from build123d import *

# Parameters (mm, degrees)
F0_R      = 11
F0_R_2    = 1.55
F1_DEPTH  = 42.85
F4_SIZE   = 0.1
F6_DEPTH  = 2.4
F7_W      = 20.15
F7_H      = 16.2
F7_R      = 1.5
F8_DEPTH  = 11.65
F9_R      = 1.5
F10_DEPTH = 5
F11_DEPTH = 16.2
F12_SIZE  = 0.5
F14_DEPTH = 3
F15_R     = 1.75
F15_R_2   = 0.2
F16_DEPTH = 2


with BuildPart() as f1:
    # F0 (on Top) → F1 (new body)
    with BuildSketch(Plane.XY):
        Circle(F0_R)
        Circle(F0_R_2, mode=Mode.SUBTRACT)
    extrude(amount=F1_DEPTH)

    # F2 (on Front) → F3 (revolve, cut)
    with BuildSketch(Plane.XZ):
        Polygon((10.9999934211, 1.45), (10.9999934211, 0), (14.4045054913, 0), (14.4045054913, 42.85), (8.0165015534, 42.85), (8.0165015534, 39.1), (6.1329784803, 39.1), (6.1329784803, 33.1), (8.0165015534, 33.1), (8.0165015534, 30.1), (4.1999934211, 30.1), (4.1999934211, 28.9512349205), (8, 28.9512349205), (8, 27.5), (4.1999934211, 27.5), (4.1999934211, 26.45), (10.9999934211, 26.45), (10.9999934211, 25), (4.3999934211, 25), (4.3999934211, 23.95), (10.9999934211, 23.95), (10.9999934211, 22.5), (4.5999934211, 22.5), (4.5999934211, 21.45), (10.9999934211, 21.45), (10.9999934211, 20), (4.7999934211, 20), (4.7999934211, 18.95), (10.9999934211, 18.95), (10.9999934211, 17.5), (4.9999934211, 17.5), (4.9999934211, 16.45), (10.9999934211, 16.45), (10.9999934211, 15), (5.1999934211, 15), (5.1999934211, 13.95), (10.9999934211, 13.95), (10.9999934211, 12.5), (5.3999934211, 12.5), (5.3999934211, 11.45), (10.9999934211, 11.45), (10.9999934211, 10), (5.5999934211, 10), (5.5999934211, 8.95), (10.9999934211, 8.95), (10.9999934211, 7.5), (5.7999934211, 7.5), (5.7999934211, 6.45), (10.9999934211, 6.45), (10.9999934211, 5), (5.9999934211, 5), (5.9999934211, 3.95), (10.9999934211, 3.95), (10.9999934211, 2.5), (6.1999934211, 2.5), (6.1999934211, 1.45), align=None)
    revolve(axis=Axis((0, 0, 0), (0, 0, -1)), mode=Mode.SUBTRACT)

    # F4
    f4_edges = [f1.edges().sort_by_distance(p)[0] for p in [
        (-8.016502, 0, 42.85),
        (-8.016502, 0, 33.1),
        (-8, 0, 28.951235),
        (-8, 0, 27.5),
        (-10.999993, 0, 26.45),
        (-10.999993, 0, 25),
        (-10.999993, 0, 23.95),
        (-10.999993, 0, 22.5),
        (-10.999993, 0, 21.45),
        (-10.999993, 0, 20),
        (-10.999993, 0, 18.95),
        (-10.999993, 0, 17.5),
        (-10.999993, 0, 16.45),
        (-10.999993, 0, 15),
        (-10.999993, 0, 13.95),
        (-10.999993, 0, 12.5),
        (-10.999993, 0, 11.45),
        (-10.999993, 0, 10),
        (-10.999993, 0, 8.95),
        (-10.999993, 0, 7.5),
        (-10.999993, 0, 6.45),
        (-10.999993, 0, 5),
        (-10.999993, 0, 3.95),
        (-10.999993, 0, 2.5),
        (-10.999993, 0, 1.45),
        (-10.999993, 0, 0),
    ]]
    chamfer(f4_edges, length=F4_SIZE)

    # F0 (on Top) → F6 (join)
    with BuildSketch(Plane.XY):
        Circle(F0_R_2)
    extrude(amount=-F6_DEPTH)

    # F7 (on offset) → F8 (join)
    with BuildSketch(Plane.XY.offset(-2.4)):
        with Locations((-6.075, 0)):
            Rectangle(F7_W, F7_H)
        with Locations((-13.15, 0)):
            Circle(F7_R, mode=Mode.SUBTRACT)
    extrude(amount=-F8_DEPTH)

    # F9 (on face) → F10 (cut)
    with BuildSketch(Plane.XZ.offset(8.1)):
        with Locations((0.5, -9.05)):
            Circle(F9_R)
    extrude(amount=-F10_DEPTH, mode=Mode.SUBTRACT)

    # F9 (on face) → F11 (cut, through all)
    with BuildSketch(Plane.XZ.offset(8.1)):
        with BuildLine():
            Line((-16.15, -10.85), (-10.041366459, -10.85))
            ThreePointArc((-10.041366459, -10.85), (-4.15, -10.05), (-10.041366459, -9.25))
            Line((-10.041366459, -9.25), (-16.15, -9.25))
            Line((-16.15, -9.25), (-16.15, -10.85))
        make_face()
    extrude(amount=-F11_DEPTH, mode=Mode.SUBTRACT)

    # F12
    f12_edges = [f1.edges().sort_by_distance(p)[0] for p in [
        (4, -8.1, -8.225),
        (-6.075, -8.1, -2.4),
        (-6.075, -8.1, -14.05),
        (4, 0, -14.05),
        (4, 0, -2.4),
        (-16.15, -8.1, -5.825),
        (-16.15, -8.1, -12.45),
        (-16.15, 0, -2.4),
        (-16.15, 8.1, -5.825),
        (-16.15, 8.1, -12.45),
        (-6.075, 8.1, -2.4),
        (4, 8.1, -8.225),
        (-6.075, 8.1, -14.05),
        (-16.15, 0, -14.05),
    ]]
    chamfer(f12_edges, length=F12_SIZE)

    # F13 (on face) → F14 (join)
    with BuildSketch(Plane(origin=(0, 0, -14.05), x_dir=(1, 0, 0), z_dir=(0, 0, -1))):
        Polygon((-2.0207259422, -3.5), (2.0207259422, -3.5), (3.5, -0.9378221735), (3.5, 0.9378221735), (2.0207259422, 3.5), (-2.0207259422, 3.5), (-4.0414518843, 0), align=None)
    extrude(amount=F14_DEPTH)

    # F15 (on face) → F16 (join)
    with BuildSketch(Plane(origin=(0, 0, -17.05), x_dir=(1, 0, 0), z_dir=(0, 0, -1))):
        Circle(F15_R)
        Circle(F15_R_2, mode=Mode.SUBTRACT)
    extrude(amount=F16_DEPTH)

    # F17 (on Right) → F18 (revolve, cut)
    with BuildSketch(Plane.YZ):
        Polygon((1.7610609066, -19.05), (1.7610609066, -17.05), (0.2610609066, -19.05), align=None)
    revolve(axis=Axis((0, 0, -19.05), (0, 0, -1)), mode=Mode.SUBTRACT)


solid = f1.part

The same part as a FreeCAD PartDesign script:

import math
import FreeCAD as App
import Part
import Sketcher
from FreeCAD import Vector
Q = App.Units.Quantity


def edges_at(feature, points):
    """Names of the edges that pass closest to the given points."""
    edges = feature.Shape.Edges
    near = lambda p: min(range(len(edges)), key=lambda i: edges[i].distToShape(Part.Vertex(*p))[0])
    return sorted({f"Edge{near(p) + 1}" for p in points})


def add_polygon(sketch, points):
    """Adds a closed chain of lines whose ends are joined by coincident constraints."""
    first, n = sketch.GeometryCount, len(points)
    for a, b in zip(points, points[1:] + points[:1]):
        sketch.addGeometry(Part.LineSegment(App.Vector(*a, 0), App.Vector(*b, 0)), False)
    for i in range(n):
        sketch.addConstraint(Sketcher.Constraint("Coincident", first + i, 2, first + (i + 1) % n, 1))

doc = App.newDocument("Part")
params = doc.addObject("Spreadsheet::Sheet", "Params")
for row, (alias, value) in enumerate([
    ("sketch1_diameter", "22 mm"),
    ("sketch1_diameter2", "3.1 mm"),
    ("pad1_length", "42.85 mm"),
    ("sketch2_width", "6 mm"),
    ("sketch2_width2", "5 mm"),
    ("sketch2_height", "3 mm"),
    ("sketch2_width3", "6.8 mm"),
    ("sketch2_width4", "6.6 mm"),
    ("groove_angle", "360 deg"),
    ("chamfer_size", "0.1 mm"),
    ("sketch3_diameter", "3.1 mm"),
    ("pad2_length", "2.4 mm"),
    ("sketch4_diameter", "3 mm"),
    ("sketch4_height", "16.2 mm"),
    ("sketch4_width", "20.15 mm"),
    ("pad3_length", "11.65 mm"),
    ("sketch5_diameter", "3 mm"),
    ("pocket1_length", "5 mm"),
    ("sketch6_radius", "3 mm"),
    ("sketch6_height", "1.6 mm"),
    ("chamfer2_size", "0.5 mm"),
    ("pad4_length", "3 mm"),
    ("sketch8_diameter", "3.5 mm"),
    ("sketch8_diameter2", "0.4 mm"),
    ("pad5_length", "2 mm"),
    ("sketch9_height", "2 mm"),
    ("sketch9_width", "1.5 mm"),
    ("groove2_angle", "360 deg"),
], start=1):
    params.set(f"A{row}", alias)
    params.set(f"B{row}", "=" + value)
    params.setAlias(f"B{row}", alias)

body = doc.addObject("PartDesign::Body", "Body")
body.AllowCompound = True

# Sketch on XY plane
sketch1 = body.newObject("Sketcher::SketchObject", "Sketch")
sketch1.AttachmentSupport = (doc.getObject("XY_Plane"), [""])
sketch1.MapMode = "FlatFace"
sketch1.addGeometry([
    Part.Circle(Vector(0, 0, 0), Vector(0, 0, 1), 11),
    Part.Circle(Vector(0, 0, 0), Vector(0, 0, 1), 1.6),
], False)
sketch1.addConstraint([
    Sketcher.Constraint("Coincident", 0, 3, -1, 1),
    Sketcher.Constraint("Coincident", 1, 3, -1, 1),
    Sketcher.Constraint("Diameter", 0, 22.0),
    Sketcher.Constraint("Diameter", 1, 3.1),
])
sketch1.setExpression("Constraints[2]", "Params.sketch1_diameter")
sketch1.setExpression("Constraints[3]", "Params.sketch1_diameter2")
pad1 = body.newObject("PartDesign::Pad", "Pad")
pad1.Profile = sketch1
pad1.setExpression("Length", "Params.pad1_length")

# Sketch on XZ plane
sketch2 = body.newObject("Sketcher::SketchObject", "Sketch001")
sketch2.AttachmentSupport = (doc.getObject("XZ_Plane"), [""])
sketch2.MapMode = "FlatFace"
add_polygon(sketch2, [(11, 1.4), (11, 0), (14.4, 0), (14.4, 42.9), (8, 42.9), (8, 39.1), (6.1, 39.1), (6.1, 33.1), (8, 33.1), (8, 30.1), (4.2, 30.1), (4.2, 29), (8, 29), (8, 27.5), (4.2, 27.5), (4.2, 26.4), (11, 26.4), (11, 25), (4.4, 25), (4.4, 23.9), (11, 23.9), (11, 22.5), (4.6, 22.5), (4.6, 21.4), (11, 21.4), (11, 20), (4.8, 20), (4.8, 18.9), (11, 18.9), (11, 17.5), (5, 17.5), (5, 16.4), (11, 16.4), (11, 15), (5.2, 15), (5.2, 13.9), (11, 13.9), (11, 12.5), (5.4, 12.5), (5.4, 11.4), (11, 11.4), (11, 10), (5.6, 10), (5.6, 8.9), (11, 8.9), (11, 7.5), (5.8, 7.5), (5.8, 6.5), (11, 6.5), (11, 5), (6, 5), (6, 4), (11, 4), (11, 2.5), (6.2, 2.5), (6.2, 1.4)])  # lines 0-55
sketch2.addConstraint([
    Sketcher.Constraint("Vertical", 0),
    Sketcher.Constraint("Horizontal", 1),
    Sketcher.Constraint("Vertical", 2),
    Sketcher.Constraint("Horizontal", 3),
    Sketcher.Constraint("Vertical", 4),
    Sketcher.Constraint("Horizontal", 5),
    Sketcher.Constraint("Vertical", 6),
    Sketcher.Constraint("Horizontal", 7),
    Sketcher.Constraint("Vertical", 8),
    Sketcher.Constraint("Horizontal", 9),
    Sketcher.Constraint("Vertical", 10),
    Sketcher.Constraint("Horizontal", 11),
    Sketcher.Constraint("Vertical", 12),
    Sketcher.Constraint("Horizontal", 13),
    Sketcher.Constraint("Vertical", 14),
    Sketcher.Constraint("Horizontal", 15),
    Sketcher.Constraint("Vertical", 16),
    Sketcher.Constraint("Horizontal", 17),
    Sketcher.Constraint("Vertical", 18),
    Sketcher.Constraint("Horizontal", 19),
    Sketcher.Constraint("Vertical", 20),
    Sketcher.Constraint("Horizontal", 21),
    Sketcher.Constraint("Vertical", 22),
    Sketcher.Constraint("Horizontal", 23),
    Sketcher.Constraint("Vertical", 24),
    Sketcher.Constraint("Horizontal", 25),
    Sketcher.Constraint("Vertical", 26),
    Sketcher.Constraint("Horizontal", 27),
    Sketcher.Constraint("Vertical", 28),
    Sketcher.Constraint("Horizontal", 29),
    Sketcher.Constraint("Vertical", 30),
    Sketcher.Constraint("Horizontal", 31),
    Sketcher.Constraint("Vertical", 32),
    Sketcher.Constraint("Horizontal", 33),
    Sketcher.Constraint("Vertical", 34),
    Sketcher.Constraint("Horizontal", 35),
    Sketcher.Constraint("Vertical", 36),
    Sketcher.Constraint("Horizontal", 37),
    Sketcher.Constraint("Vertical", 38),
    Sketcher.Constraint("Horizontal", 39),
    Sketcher.Constraint("Vertical", 40),
    Sketcher.Constraint("Horizontal", 41),
    Sketcher.Constraint("Vertical", 42),
    Sketcher.Constraint("Horizontal", 43),
    Sketcher.Constraint("Vertical", 44),
    Sketcher.Constraint("Horizontal", 45),
    Sketcher.Constraint("Vertical", 46),
    Sketcher.Constraint("Horizontal", 47),
    Sketcher.Constraint("Vertical", 48),
    Sketcher.Constraint("Horizontal", 49),
    Sketcher.Constraint("Vertical", 50),
    Sketcher.Constraint("Horizontal", 51),
    Sketcher.Constraint("Vertical", 52),
    Sketcher.Constraint("Horizontal", 53),
    Sketcher.Constraint("Vertical", 54),
    Sketcher.Constraint("Horizontal", 55),
    Sketcher.Constraint("PointOnObject", 0, 2, -1),
    Sketcher.Constraint("Vertical", 4, 2, 7, 2),
    Sketcher.Constraint("Vertical", 10, 2, 13, 2),
    Sketcher.Constraint("Vertical", 0, 2, 15, 2),
    Sketcher.Constraint("Vertical", 16, 2, 19, 2),
    Sketcher.Constraint("Vertical", 20, 2, 23, 2),
    Sketcher.Constraint("Vertical", 24, 2, 27, 2),
    Sketcher.Constraint("Vertical", 28, 2, 31, 2),
    Sketcher.Constraint("Vertical", 32, 2, 35, 2),
    Sketcher.Constraint("Vertical", 36, 2, 39, 2),
    Sketcher.Constraint("Vertical", 40, 2, 43, 2),
    Sketcher.Constraint("Vertical", 44, 2, 47, 2),
    Sketcher.Constraint("Vertical", 48, 2, 51, 2),
    Sketcher.Constraint("Equal", 31, 6),
    Sketcher.Constraint("Equal", 0, 16),
    Sketcher.Constraint("Equal", 14, 18),
    Sketcher.Constraint("Equal", 16, 20),
    Sketcher.Constraint("Equal", 18, 22),
    Sketcher.Constraint("Equal", 20, 24),
    Sketcher.Constraint("Equal", 22, 26),
    Sketcher.Constraint("Equal", 24, 28),
    Sketcher.Constraint("Equal", 26, 30),
    Sketcher.Constraint("Equal", 28, 32),
    Sketcher.Constraint("Equal", 30, 34),
    Sketcher.Constraint("Equal", 32, 36),
    Sketcher.Constraint("Equal", 34, 38),
    Sketcher.Constraint("Equal", 36, 40),
    Sketcher.Constraint("Equal", 38, 42),
    Sketcher.Constraint("Equal", 40, 44),
    Sketcher.Constraint("Equal", 42, 46),
    Sketcher.Constraint("Equal", 44, 48),
    Sketcher.Constraint("Equal", 46, 50),
    Sketcher.Constraint("Equal", 48, 52),
    Sketcher.Constraint("Equal", 50, 54),
    Sketcher.Constraint("DistanceX", 29, 2, 29, 1, 6.0),
    Sketcher.Constraint("DistanceX", 49, 2, 49, 1, 5.0),
    Sketcher.Constraint("DistanceY", 8, 2, 8, 1, 3.0),
    Sketcher.Constraint("DistanceX", 15, 1, 15, 2, 6.8),
    Sketcher.Constraint("DistanceX", 17, 2, 17, 1, 6.6),
    Sketcher.Constraint("DistanceX", 21, 2, 21, 1, 6.4),
    Sketcher.Constraint("DistanceX", 25, 2, 25, 1, 6.2),
    Sketcher.Constraint("DistanceX", 33, 2, 33, 1, 5.8),
    Sketcher.Constraint("DistanceX", 37, 2, 37, 1, 5.6),
    Sketcher.Constraint("DistanceX", 41, 2, 41, 1, 5.4),
    Sketcher.Constraint("DistanceX", 45, 2, 45, 1, 5.2),
    Sketcher.Constraint("DistanceX", 53, 2, 53, 1, 4.8),
    Sketcher.Constraint("DistanceX", -1, 1, 11, 2, 8.0),
    Sketcher.Constraint("DistanceY", -1, 1, 16, 2, 25.0),
    Sketcher.Constraint("DistanceY", 0, 2, 0, 1, 1.45),
    Sketcher.Constraint("DistanceY", 2, 1, 2, 2, 42.85),
    Sketcher.Constraint("DistanceY", 4, 2, 4, 1, 3.75),
    Sketcher.Constraint("DistanceX", 9, 2, 9, 1, 3.816508),
    Sketcher.Constraint("DistanceX", -1, 1, 3, 2, 8.016502),
    Sketcher.Constraint("DistanceX", 1, 1, 1, 2, 3.404512),
    Sketcher.Constraint("DistanceX", 5, 2, 5, 1, 1.883523),
    Sketcher.Constraint("DistanceY", 10, 2, 10, 1, 1.148765),
])
sketch2.setExpression("Constraints[146]", "Params.sketch2_width")
sketch2.setExpression("Constraints[147]", "Params.sketch2_width2")
sketch2.setExpression("Constraints[148]", "Params.sketch2_height")
sketch2.setExpression("Constraints[149]", "Params.sketch2_width3")
sketch2.setExpression("Constraints[150]", "Params.sketch2_width4")
groove = body.newObject("PartDesign::Groove", "Groove")
groove.Profile = sketch2
groove.ReferenceAxis = (sketch2, ["V_Axis"])
groove.setExpression("Angle", "Params.groove_angle")
doc.recompute()

chamfer = body.newObject("PartDesign::Chamfer", "Chamfer")
chamfer.Base = (groove, edges_at(groove, [
    (-8.017, 0, 42.85),
    (-8.017, 0, 33.1),
    (-8, 0, 28.951),
    (-8, 0, 27.5),
    (-11, 0, 26.45),
    (-11, 0, 25),
    (-11, 0, 23.95),
    (-11, 0, 22.5),
    (-11, 0, 21.45),
    (-11, 0, 20),
    (-11, 0, 18.95),
    (-11, 0, 17.5),
    (-11, 0, 16.45),
    (-11, 0, 15),
    (-11, 0, 13.95),
    (-11, 0, 12.5),
    (-11, 0, 11.45),
    (-11, 0, 10),
    (-11, 0, 8.95),
    (-11, 0, 7.5),
    (-11, 0, 6.45),
    (-11, 0, 5),
    (-11, 0, 3.95),
    (-11, 0, 2.5),
    (-11, 0, 1.45),
    (-11, 0, 0),
]))
chamfer.setExpression("Size", "Params.chamfer_size")

# Sketch on XY plane
sketch3 = body.newObject("Sketcher::SketchObject", "Sketch002")
sketch3.AttachmentSupport = (doc.getObject("XY_Plane"), [""])
sketch3.MapMode = "FlatFace"
sketch3.addGeometry(Part.Circle(Vector(0, 0, 0), Vector(0, 0, 1), 1.6), False)
sketch3.addConstraint([
    Sketcher.Constraint("Coincident", 0, 3, -1, 1),
    Sketcher.Constraint("Diameter", 0, 3.1),
])
sketch3.setExpression("Constraints[1]", "Params.sketch3_diameter")
pad2 = body.newObject("PartDesign::Pad", "Pad001")
pad2.Profile = sketch3
pad2.setExpression("Length", "Params.pad2_length")
pad2.Reversed = True

# Sketch on XY plane
sketch4 = body.newObject("Sketcher::SketchObject", "Sketch003")
sketch4.AttachmentSupport = (doc.getObject("XY_Plane"), [""])
sketch4.MapMode = "FlatFace"
sketch4.AttachmentOffset = App.Placement(Vector(0, 0, -2.4), App.Rotation())
add_polygon(sketch4, [(-16.1, 8.1), (-16.1, -8.1), (4, -8.1), (4, 8.1)])  # lines 0-3
sketch4.addGeometry(Part.Circle(Vector(-13.2, 0, 0), Vector(0, 0, 1), 1.5), False)  # 4
sketch4.addConstraint([
    Sketcher.Constraint("Vertical", 0),
    Sketcher.Constraint("Horizontal", 1),
    Sketcher.Constraint("Vertical", 2),
    Sketcher.Constraint("Horizontal", 3),
    Sketcher.Constraint("PointOnObject", 4, 3, -1),
    Sketcher.Constraint("Diameter", 4, 3.0),
    Sketcher.Constraint("DistanceY", 0, 2, 0, 1, 16.2),
    Sketcher.Constraint("DistanceX", -1, 1, 1, 2, 4.0),
    Sketcher.Constraint("DistanceX", 0, 2, 4, 3, 3.0),
    Sketcher.Constraint("DistanceX", 1, 1, 1, 2, 20.15),
    Sketcher.Constraint("DistanceY", 0, 2, -1, 1, 8.1),
])
sketch4.setExpression("Constraints[9]", "Params.sketch4_diameter")
sketch4.setExpression("Constraints[10]", "Params.sketch4_height")
sketch4.setExpression("Constraints[13]", "Params.sketch4_width")
pad3 = body.newObject("PartDesign::Pad", "Pad002")
pad3.Profile = sketch4
pad3.setExpression("Length", "Params.pad3_length")
pad3.Reversed = True

# Sketch on XZ plane
sketch5 = body.newObject("Sketcher::SketchObject", "Sketch004")
sketch5.AttachmentSupport = (doc.getObject("XZ_Plane"), [""])
sketch5.MapMode = "FlatFace"
sketch5.AttachmentOffset = App.Placement(Vector(0, 0, 8.1), App.Rotation())
sketch5.addGeometry(Part.Circle(Vector(0.5, -9.1, 0), Vector(0, 0, 1), 1.5), False)
sketch5.addConstraint([
    Sketcher.Constraint("Diameter", 0, 3.0),
    Sketcher.Constraint("DistanceX", -1, 1, 0, 3, 0.5),
    Sketcher.Constraint("DistanceY", 0, 3, -1, 1, 9.05),
])
sketch5.setExpression("Constraints[0]", "Params.sketch5_diameter")
pocket1 = body.newObject("PartDesign::Pocket", "Pocket")
pocket1.Profile = sketch5
pocket1.setExpression("Length", "Params.pocket1_length")

# Sketch on XZ plane
sketch6 = body.newObject("Sketcher::SketchObject", "Sketch005")
sketch6.AttachmentSupport = (doc.getObject("XZ_Plane"), [""])
sketch6.MapMode = "FlatFace"
sketch6.AttachmentOffset = App.Placement(Vector(0, 0, 8.1), App.Rotation())
sketch6.addGeometry([
    Part.LineSegment(Vector(-16.1, -10.8, 0), Vector(-10, -10.8, 0)),
    Part.ArcOfCircle(Part.Circle(Vector(-7.2, -10.1, 0), Vector(0, 0, 1), 3), math.radians(-165), math.radians(165)),
    Part.LineSegment(Vector(-10, -9.2, 0), Vector(-16.1, -9.2, 0)),
    Part.LineSegment(Vector(-16.1, -9.2, 0), Vector(-16.1, -10.8, 0)),
], False)
sketch6.addConstraint([
    Sketcher.Constraint("Coincident", 0, 2, 1, 1),
    Sketcher.Constraint("Coincident", 1, 2, 2, 1),
    Sketcher.Constraint("Coincident", 2, 2, 3, 1),
    Sketcher.Constraint("Coincident", 3, 2, 0, 1),
    Sketcher.Constraint("Horizontal", 0),
    Sketcher.Constraint("Horizontal", 2),
    Sketcher.Constraint("Vertical", 3),
    Sketcher.Constraint("Vertical", 0, 2, 1, 2),
    Sketcher.Constraint("Radius", 1, 3.0),
    Sketcher.Constraint("DistanceY", 3, 2, 3, 1, 1.6),
    Sketcher.Constraint("DistanceX", 2, 2, 1, 3, 9.0),
    Sketcher.Constraint("DistanceX", 1, 3, -1, 1, 7.15),
    Sketcher.Constraint("DistanceY", 1, 3, -1, 1, 10.05),
])
sketch6.setExpression("Constraints[8]", "Params.sketch6_radius")
sketch6.setExpression("Constraints[9]", "Params.sketch6_height")
pocket2 = body.newObject("PartDesign::Pocket", "Pocket001")
pocket2.Profile = sketch6
pocket2.Type = "ThroughAll"
doc.recompute()

chamfer2 = body.newObject("PartDesign::Chamfer", "Chamfer001")
chamfer2.Base = (pocket2, edges_at(pocket2, [
    (4, -8.1, -8.225),
    (-6.075, -8.1, -2.4),
    (-6.075, -8.1, -14.05),
    (4, 0, -14.05),
    (4, 0, -2.4),
    (-16.15, -8.1, -5.825),
    (-16.15, -8.1, -12.45),
    (-16.15, 0, -2.4),
    (-16.15, 8.1, -5.825),
    (-16.15, 8.1, -12.45),
    (-6.075, 8.1, -2.4),
    (4, 8.1, -8.225),
    (-6.075, 8.1, -14.05),
    (-16.15, 0, -14.05),
]))
chamfer2.setExpression("Size", "Params.chamfer2_size")

# Sketch on XY plane
sketch7 = body.newObject("Sketcher::SketchObject", "Sketch006")
sketch7.AttachmentSupport = (doc.getObject("XY_Plane"), [""])
sketch7.MapMode = "FlatFace"
sketch7.AttachmentOffset = App.Placement(Vector(0, 0, -14.05), App.Rotation())
add_polygon(sketch7, [(-2, 3.5), (2, 3.5), (3.5, 0.9), (3.5, -0.9), (2, -3.5), (-2, -3.5), (-4, 0)])  # lines 0-6
sketch7.addConstraint([
    Sketcher.Constraint("Horizontal", 0),
    Sketcher.Constraint("Vertical", 2),
    Sketcher.Constraint("Horizontal", 4),
    Sketcher.Constraint("Symmetric", 0, 2, 4, 2, -1, 1),
    Sketcher.Constraint("PointOnObject", 5, 2, -1),
    Sketcher.Constraint("Parallel", 1, 5),
    Sketcher.Constraint("Parallel", 3, 6),
    Sketcher.Constraint("Vertical", 0, 2, 3, 2),
    Sketcher.Constraint("Vertical", 4, 2, 6, 2),
    Sketcher.Constraint("Angle", 1, Q("-60 deg")),
    Sketcher.Constraint("DistanceY", 3, 2, 0, 2, 7.0),
    Sketcher.Constraint("DistanceX", -1, 1, 1, 2, 3.5),
    Sketcher.Constraint("DistanceX", 0, 1, 0, 2, 4.041452),
])
pad4 = body.newObject("PartDesign::Pad", "Pad003")
pad4.Profile = sketch7
pad4.setExpression("Length", "Params.pad4_length")
pad4.Reversed = True

# Sketch on XY plane
sketch8 = body.newObject("Sketcher::SketchObject", "Sketch007")
sketch8.AttachmentSupport = (doc.getObject("XY_Plane"), [""])
sketch8.MapMode = "FlatFace"
sketch8.AttachmentOffset = App.Placement(Vector(0, 0, -17.05), App.Rotation())
sketch8.addGeometry([
    Part.Circle(Vector(0, 0, 0), Vector(0, 0, 1), 1.75),
    Part.Circle(Vector(0, 0, 0), Vector(0, 0, 1), 0.2),
], False)
sketch8.addConstraint([
    Sketcher.Constraint("Coincident", 0, 3, -1, 1),
    Sketcher.Constraint("Coincident", 1, 3, -1, 1),
    Sketcher.Constraint("Diameter", 0, 3.5),
    Sketcher.Constraint("Diameter", 1, 0.4),
])
sketch8.setExpression("Constraints[2]", "Params.sketch8_diameter")
sketch8.setExpression("Constraints[3]", "Params.sketch8_diameter2")
pad5 = body.newObject("PartDesign::Pad", "Pad004")
pad5.Profile = sketch8
pad5.setExpression("Length", "Params.pad5_length")
pad5.Reversed = True

# Sketch on YZ plane
sketch9 = body.newObject("Sketcher::SketchObject", "Sketch008")
sketch9.AttachmentSupport = (doc.getObject("YZ_Plane"), [""])
sketch9.MapMode = "FlatFace"
add_polygon(sketch9, [(1.8, -19.1), (1.8, -17.1), (0.3, -19.1)])  # lines 0-2
sketch9.addConstraint([
    Sketcher.Constraint("Vertical", 0),
    Sketcher.Constraint("Horizontal", 2),
    Sketcher.Constraint("DistanceY", 0, 1, 0, 2, 2.0),
    Sketcher.Constraint("DistanceX", 2, 1, 2, 2, 1.5),
    Sketcher.Constraint("DistanceY", 0, 2, -1, 1, 17.05),
    Sketcher.Constraint("DistanceX", -1, 1, 0, 2, 1.761061),
])
sketch9.setExpression("Constraints[5]", "Params.sketch9_height")
sketch9.setExpression("Constraints[6]", "Params.sketch9_width")
groove2 = body.newObject("PartDesign::Groove", "Groove001")
groove2.Profile = sketch9
groove2.ReferenceAxis = (sketch9, ["V_Axis"])
groove2.setExpression("Angle", "Params.groove2_angle")

doc.recompute()
